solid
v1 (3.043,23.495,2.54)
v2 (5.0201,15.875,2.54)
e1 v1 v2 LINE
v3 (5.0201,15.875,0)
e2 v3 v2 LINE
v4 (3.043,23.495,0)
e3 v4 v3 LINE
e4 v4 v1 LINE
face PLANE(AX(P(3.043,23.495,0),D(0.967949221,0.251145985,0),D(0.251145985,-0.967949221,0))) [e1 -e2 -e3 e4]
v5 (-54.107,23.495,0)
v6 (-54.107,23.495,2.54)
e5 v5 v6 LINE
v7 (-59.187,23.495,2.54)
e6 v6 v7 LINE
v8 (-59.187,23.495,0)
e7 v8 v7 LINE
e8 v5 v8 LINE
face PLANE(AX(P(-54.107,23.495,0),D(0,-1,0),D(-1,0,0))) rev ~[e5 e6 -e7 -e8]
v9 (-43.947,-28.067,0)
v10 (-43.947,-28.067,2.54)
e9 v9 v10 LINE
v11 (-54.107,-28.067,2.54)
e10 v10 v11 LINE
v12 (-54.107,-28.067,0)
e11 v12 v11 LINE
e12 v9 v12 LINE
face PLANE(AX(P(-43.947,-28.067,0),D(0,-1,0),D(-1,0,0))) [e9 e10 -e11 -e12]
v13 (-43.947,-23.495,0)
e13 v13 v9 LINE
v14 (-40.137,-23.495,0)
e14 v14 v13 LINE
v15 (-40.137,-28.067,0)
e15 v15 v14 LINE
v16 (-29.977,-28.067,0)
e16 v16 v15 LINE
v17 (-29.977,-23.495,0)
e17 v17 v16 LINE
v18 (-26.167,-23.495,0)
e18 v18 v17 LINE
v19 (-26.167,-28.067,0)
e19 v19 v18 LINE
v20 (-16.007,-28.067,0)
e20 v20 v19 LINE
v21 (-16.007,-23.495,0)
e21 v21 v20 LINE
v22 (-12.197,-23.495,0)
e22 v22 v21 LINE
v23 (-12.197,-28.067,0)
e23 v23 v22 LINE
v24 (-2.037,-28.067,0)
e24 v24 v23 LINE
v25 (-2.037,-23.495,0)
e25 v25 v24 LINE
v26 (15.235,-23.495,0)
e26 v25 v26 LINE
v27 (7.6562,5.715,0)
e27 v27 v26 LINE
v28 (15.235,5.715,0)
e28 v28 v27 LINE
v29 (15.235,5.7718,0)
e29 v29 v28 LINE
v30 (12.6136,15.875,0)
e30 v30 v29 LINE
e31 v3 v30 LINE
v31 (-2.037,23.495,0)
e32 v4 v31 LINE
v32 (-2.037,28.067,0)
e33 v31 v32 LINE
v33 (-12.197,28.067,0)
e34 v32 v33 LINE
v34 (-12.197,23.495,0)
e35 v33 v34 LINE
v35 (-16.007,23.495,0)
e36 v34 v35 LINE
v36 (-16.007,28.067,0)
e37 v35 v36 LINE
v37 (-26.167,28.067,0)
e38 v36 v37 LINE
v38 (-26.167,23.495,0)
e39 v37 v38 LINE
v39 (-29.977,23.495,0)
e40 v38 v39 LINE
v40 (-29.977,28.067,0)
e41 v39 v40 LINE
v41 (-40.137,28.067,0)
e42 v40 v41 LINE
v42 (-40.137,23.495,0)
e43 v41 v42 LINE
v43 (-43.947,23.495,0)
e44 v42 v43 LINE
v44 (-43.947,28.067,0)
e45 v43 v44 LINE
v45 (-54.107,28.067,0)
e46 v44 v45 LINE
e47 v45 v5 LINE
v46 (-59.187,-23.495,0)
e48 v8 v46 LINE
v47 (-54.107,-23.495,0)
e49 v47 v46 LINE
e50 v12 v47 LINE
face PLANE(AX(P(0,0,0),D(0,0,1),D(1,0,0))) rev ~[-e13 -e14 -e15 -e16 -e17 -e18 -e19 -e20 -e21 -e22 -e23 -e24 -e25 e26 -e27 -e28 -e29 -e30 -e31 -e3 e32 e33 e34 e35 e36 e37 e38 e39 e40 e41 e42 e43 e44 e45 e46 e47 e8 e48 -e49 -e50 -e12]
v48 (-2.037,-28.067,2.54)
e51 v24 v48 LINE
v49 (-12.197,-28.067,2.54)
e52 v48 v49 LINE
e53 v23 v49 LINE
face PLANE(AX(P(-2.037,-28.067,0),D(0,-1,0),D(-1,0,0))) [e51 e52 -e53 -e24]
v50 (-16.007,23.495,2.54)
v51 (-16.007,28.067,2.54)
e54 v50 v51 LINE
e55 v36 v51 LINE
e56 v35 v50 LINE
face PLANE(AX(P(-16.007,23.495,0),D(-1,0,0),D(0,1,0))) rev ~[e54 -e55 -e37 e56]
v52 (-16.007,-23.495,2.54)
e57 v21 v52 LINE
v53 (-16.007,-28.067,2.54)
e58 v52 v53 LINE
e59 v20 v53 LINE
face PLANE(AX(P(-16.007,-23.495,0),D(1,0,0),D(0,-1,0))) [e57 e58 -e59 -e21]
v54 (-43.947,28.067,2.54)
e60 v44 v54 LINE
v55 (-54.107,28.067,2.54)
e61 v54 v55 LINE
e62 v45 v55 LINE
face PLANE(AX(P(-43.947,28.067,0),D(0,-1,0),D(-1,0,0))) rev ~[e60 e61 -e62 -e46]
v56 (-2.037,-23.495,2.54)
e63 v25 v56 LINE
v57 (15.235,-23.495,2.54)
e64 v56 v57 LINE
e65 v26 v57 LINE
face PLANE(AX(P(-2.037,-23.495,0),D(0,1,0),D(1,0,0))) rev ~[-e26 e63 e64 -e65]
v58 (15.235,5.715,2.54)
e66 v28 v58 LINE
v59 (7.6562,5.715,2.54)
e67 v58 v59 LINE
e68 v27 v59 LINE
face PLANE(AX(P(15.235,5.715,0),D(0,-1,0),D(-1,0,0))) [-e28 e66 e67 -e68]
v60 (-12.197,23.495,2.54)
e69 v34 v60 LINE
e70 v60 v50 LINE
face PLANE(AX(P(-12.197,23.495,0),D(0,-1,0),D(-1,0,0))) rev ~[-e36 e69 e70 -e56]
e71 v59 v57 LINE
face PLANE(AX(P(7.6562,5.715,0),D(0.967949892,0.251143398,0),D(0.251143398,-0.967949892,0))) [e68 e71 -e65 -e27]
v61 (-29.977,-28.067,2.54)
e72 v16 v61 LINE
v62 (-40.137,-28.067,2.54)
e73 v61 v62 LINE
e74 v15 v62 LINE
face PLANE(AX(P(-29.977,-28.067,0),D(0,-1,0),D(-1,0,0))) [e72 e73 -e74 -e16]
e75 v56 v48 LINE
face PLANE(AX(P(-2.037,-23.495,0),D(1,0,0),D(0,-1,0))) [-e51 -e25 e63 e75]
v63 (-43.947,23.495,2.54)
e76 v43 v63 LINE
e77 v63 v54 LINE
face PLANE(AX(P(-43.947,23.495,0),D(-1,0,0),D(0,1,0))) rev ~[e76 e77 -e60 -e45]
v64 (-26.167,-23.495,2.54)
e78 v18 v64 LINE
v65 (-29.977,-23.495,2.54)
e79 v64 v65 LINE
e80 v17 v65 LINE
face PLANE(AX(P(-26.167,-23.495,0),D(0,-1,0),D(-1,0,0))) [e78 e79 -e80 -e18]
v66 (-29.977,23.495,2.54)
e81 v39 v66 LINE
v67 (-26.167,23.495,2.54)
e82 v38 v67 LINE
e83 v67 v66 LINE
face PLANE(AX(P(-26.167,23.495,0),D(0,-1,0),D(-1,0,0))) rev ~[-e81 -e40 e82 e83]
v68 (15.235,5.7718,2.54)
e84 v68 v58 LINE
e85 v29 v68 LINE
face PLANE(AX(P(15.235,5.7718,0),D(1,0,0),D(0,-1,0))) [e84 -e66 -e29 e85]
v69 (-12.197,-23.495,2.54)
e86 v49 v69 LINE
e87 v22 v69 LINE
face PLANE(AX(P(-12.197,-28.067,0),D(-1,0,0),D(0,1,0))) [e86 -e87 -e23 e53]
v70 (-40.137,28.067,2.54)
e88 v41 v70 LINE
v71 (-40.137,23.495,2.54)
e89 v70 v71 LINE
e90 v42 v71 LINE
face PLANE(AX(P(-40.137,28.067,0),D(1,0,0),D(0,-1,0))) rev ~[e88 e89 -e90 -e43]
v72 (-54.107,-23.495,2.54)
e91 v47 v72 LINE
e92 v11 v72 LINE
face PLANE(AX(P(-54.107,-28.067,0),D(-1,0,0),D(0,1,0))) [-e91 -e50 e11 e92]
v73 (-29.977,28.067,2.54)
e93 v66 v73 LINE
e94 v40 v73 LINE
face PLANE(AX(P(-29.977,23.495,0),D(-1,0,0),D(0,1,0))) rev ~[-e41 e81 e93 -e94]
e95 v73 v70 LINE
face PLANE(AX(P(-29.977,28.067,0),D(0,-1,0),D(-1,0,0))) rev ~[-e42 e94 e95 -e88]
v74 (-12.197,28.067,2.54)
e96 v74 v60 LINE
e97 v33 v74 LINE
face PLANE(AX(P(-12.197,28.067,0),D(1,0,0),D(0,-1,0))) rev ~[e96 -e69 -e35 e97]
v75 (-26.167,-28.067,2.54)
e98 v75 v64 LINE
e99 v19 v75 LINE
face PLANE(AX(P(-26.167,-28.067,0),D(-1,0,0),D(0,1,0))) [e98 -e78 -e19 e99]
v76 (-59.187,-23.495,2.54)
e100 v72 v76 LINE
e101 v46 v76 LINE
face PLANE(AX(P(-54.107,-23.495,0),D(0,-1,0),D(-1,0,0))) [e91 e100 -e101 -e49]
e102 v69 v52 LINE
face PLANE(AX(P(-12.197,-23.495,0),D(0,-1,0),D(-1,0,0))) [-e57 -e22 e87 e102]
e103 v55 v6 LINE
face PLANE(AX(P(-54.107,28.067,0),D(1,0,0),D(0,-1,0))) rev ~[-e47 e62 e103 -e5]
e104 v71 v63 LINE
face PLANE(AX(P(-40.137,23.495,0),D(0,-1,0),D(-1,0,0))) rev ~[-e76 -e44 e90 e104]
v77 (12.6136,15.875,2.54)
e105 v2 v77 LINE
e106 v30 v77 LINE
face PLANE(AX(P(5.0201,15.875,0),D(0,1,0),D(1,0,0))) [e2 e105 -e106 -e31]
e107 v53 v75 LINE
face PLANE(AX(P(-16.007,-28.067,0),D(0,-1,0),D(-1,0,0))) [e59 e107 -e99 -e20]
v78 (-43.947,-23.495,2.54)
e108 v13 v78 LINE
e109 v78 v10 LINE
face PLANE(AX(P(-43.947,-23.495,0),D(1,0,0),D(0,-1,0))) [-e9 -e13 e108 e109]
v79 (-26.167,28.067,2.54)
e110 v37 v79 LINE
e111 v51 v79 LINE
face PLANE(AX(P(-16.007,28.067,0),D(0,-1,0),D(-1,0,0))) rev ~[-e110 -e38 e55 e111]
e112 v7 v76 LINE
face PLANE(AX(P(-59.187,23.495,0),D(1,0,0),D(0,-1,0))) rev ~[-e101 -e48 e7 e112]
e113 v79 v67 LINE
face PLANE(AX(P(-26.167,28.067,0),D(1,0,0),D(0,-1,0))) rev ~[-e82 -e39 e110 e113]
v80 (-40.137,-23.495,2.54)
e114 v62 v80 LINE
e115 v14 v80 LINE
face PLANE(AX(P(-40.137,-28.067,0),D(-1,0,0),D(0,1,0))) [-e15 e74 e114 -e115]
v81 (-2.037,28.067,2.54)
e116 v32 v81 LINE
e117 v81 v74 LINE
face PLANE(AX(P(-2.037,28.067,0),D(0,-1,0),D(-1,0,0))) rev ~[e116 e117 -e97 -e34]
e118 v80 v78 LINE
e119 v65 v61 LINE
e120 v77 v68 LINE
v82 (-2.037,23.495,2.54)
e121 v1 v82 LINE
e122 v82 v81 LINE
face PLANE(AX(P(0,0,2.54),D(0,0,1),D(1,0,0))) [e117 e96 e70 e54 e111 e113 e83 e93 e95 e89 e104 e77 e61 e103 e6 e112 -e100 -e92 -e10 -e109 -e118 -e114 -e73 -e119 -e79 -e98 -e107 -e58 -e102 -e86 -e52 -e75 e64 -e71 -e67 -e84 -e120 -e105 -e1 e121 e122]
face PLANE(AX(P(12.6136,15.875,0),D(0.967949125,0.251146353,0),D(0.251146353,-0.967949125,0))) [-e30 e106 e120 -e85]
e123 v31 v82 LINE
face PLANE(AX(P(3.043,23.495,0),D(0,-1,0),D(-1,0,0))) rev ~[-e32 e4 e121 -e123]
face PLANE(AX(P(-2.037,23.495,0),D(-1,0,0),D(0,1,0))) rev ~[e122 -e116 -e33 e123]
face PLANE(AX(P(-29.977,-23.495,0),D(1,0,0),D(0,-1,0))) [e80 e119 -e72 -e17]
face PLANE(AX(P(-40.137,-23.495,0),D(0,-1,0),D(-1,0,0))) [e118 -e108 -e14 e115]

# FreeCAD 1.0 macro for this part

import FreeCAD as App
import Part
import Sketcher
Q = App.Units.Quantity

doc = App.newDocument("Part")
body = doc.addObject("PartDesign::Body", "Body")

# Sketch on XY plane
sketch1 = body.newObject("Sketcher::SketchObject", "Sketch")
sketch1.AttachmentSupport = (doc.getObject("XY_Plane"), [""])
sketch1.MapMode = "FlatFace"
sketch1.addGeometry([
    Part.LineSegment(App.Vector(-2.037, -28.067, 0), App.Vector(-2.037, -23.495, 0)),  # 0
    Part.LineSegment(App.Vector(-2.037, -23.495, 0), App.Vector(15.235, -23.495, 0)),  # 1
    Part.LineSegment(App.Vector(15.235, -23.495, 0), App.Vector(7.6562, 5.715, 0)),  # 2
    Part.LineSegment(App.Vector(7.6562, 5.715, 0), App.Vector(15.235, 5.715, 0)),  # 3
    Part.LineSegment(App.Vector(15.235, 5.715, 0), App.Vector(15.235, 5.7718, 0)),  # 4
    Part.LineSegment(App.Vector(15.235, 5.7718, 0), App.Vector(12.6136, 15.875, 0)),  # 5
    Part.LineSegment(App.Vector(12.6136, 15.875, 0), App.Vector(5.0201, 15.875, 0)),  # 6
    Part.LineSegment(App.Vector(5.0201, 15.875, 0), App.Vector(3.043, 23.495, 0)),  # 7
    Part.LineSegment(App.Vector(3.043, 23.495, 0), App.Vector(-2.037, 23.495, 0)),  # 8
    Part.LineSegment(App.Vector(-2.037, 23.495, 0), App.Vector(-2.037, 28.067, 0)),  # 9
    Part.LineSegment(App.Vector(-2.037, 28.067, 0), App.Vector(-12.197, 28.067, 0)),  # 10
    Part.LineSegment(App.Vector(-12.197, 28.067, 0), App.Vector(-12.197, 23.495, 0)),  # 11
    Part.LineSegment(App.Vector(-12.197, 23.495, 0), App.Vector(-16.007, 23.495, 0)),  # 12
    Part.LineSegment(App.Vector(-16.007, 23.495, 0), App.Vector(-16.007, 28.067, 0)),  # 13
    Part.LineSegment(App.Vector(-16.007, 28.067, 0), App.Vector(-26.167, 28.067, 0)),  # 14
    Part.LineSegment(App.Vector(-26.167, 28.067, 0), App.Vector(-26.167, 23.495, 0)),  # 15
    Part.LineSegment(App.Vector(-26.167, 23.495, 0), App.Vector(-29.977, 23.495, 0)),  # 16
    Part.LineSegment(App.Vector(-29.977, 23.495, 0), App.Vector(-29.977, 28.067, 0)),  # 17
    Part.LineSegment(App.Vector(-29.977, 28.067, 0), App.Vector(-40.137, 28.067, 0)),  # 18
    Part.LineSegment(App.Vector(-40.137, 28.067, 0), App.Vector(-40.137, 23.495, 0)),  # 19
    Part.LineSegment(App.Vector(-40.137, 23.495, 0), App.Vector(-43.947, 23.495, 0)),  # 20
    Part.LineSegment(App.Vector(-43.947, 23.495, 0), App.Vector(-43.947, 28.067, 0)),  # 21
    Part.LineSegment(App.Vector(-43.947, 28.067, 0), App.Vector(-54.107, 28.067, 0)),  # 22
    Part.LineSegment(App.Vector(-54.107, 28.067, 0), App.Vector(-54.107, 23.495, 0)),  # 23
    Part.LineSegment(App.Vector(-54.107, 23.495, 0), App.Vector(-59.187, 23.495, 0)),  # 24
    Part.LineSegment(App.Vector(-59.187, 23.495, 0), App.Vector(-59.187, -23.495, 0)),  # 25
    Part.LineSegment(App.Vector(-59.187, -23.495, 0), App.Vector(-54.107, -23.495, 0)),  # 26
    Part.LineSegment(App.Vector(-54.107, -23.495, 0), App.Vector(-54.107, -28.067, 0)),  # 27
    Part.LineSegment(App.Vector(-54.107, -28.067, 0), App.Vector(-43.947, -28.067, 0)),  # 28
    Part.LineSegment(App.Vector(-43.947, -28.067, 0), App.Vector(-43.947, -23.495, 0)),  # 29
    Part.LineSegment(App.Vector(-43.947, -23.495, 0), App.Vector(-40.137, -23.495, 0)),  # 30
    Part.LineSegment(App.Vector(-40.137, -23.495, 0), App.Vector(-40.137, -28.067, 0)),  # 31
    Part.LineSegment(App.Vector(-40.137, -28.067, 0), App.Vector(-29.977, -28.067, 0)),  # 32
    Part.LineSegment(App.Vector(-29.977, -28.067, 0), App.Vector(-29.977, -23.495, 0)),  # 33
    Part.LineSegment(App.Vector(-29.977, -23.495, 0), App.Vector(-26.167, -23.495, 0)),  # 34
    Part.LineSegment(App.Vector(-26.167, -23.495, 0), App.Vector(-26.167, -28.067, 0)),  # 35
    Part.LineSegment(App.Vector(-26.167, -28.067, 0), App.Vector(-16.007, -28.067, 0)),  # 36
    Part.LineSegment(App.Vector(-16.007, -28.067, 0), App.Vector(-16.007, -23.495, 0)),  # 37
    Part.LineSegment(App.Vector(-16.007, -23.495, 0), App.Vector(-12.197, -23.495, 0)),  # 38
    Part.LineSegment(App.Vector(-12.197, -23.495, 0), App.Vector(-12.197, -28.067, 0)),  # 39
    Part.LineSegment(App.Vector(-12.197, -28.067, 0), App.Vector(-2.037, -28.067, 0)),  # 40
], False)
sketch1.addConstraint([
    Sketcher.Constraint("Coincident", 0, 2, 1, 1),
    Sketcher.Constraint("Coincident", 1, 2, 2, 1),
    Sketcher.Constraint("Coincident", 2, 2, 3, 1),
    Sketcher.Constraint("Coincident", 3, 2, 4, 1),
    Sketcher.Constraint("Coincident", 4, 2, 5, 1),
    Sketcher.Constraint("Coincident", 5, 2, 6, 1),
    Sketcher.Constraint("Coincident", 6, 2, 7, 1),
    Sketcher.Constraint("Coincident", 7, 2, 8, 1),
    Sketcher.Constraint("Coincident", 8, 2, 9, 1),
    Sketcher.Constraint("Coincident", 9, 2, 10, 1),
    Sketcher.Constraint("Coincident", 10, 2, 11, 1),
    Sketcher.Constraint("Coincident", 11, 2, 12, 1),
    Sketcher.Constraint("Coincident", 12, 2, 13, 1),
    Sketcher.Constraint("Coincident", 13, 2, 14, 1),
    Sketcher.Constraint("Coincident", 14, 2, 15, 1),
    Sketcher.Constraint("Coincident", 15, 2, 16, 1),
    Sketcher.Constraint("Coincident", 16, 2, 17, 1),
    Sketcher.Constraint("Coincident", 17, 2, 18, 1),
    Sketcher.Constraint("Coincident", 18, 2, 19, 1),
    Sketcher.Constraint("Coincident", 19, 2, 20, 1),
    Sketcher.Constraint("Coincident", 20, 2, 21, 1),
    Sketcher.Constraint("Coincident", 21, 2, 22, 1),
    Sketcher.Constraint("Coincident", 22, 2, 23, 1),
    Sketcher.Constraint("Coincident", 23, 2, 24, 1),
    Sketcher.Constraint("Coincident", 24, 2, 25, 1),
    Sketcher.Constraint("Coincident", 25, 2, 26, 1),
    Sketcher.Constraint("Coincident", 26, 2, 27, 1),
    Sketcher.Constraint("Coincident", 27, 2, 28, 1),
    Sketcher.Constraint("Coincident", 28, 2, 29, 1),
    Sketcher.Constraint("Coincident", 29, 2, 30, 1),
    Sketcher.Constraint("Coincident", 30, 2, 31, 1),
    Sketcher.Constraint("Coincident", 31, 2, 32, 1),
    Sketcher.Constraint("Coincident", 32, 2, 33, 1),
    Sketcher.Constraint("Coincident", 33, 2, 34, 1),
    Sketcher.Constraint("Coincident", 34, 2, 35, 1),
    Sketcher.Constraint("Coincident", 35, 2, 36, 1),
    Sketcher.Constraint("Coincident", 36, 2, 37, 1),
    Sketcher.Constraint("Coincident", 37, 2, 38, 1),
    Sketcher.Constraint("Coincident", 38, 2, 39, 1),
    Sketcher.Constraint("Coincident", 39, 2, 40, 1),
    Sketcher.Constraint("Coincident", 40, 2, 0, 1),
    Sketcher.Constraint("Vertical", 0),
    Sketcher.Constraint("Horizontal", 1),
    Sketcher.Constraint("Horizontal", 3),
    Sketcher.Constraint("Vertical", 4),
    Sketcher.Constraint("Horizontal", 6),
    Sketcher.Constraint("Horizontal", 8),
    Sketcher.Constraint("Vertical", 9),
    Sketcher.Constraint("Horizontal", 10),
    Sketcher.Constraint("Vertical", 11),
    Sketcher.Constraint("Horizontal", 12),
    Sketcher.Constraint("Vertical", 13),
    Sketcher.Constraint("Horizontal", 14),
    Sketcher.Constraint("Vertical", 15),
    Sketcher.Constraint("Horizontal", 16),
    Sketcher.Constraint("Vertical", 17),
    Sketcher.Constraint("Horizontal", 18),
    Sketcher.Constraint("Vertical", 19),
    Sketcher.Constraint("Horizontal", 20),
    Sketcher.Constraint("Vertical", 21),
    Sketcher.Constraint("Horizontal", 22),
    Sketcher.Constraint("Vertical", 23),
    Sketcher.Constraint("Horizontal", 24),
    Sketcher.Constraint("Vertical", 25),
    Sketcher.Constraint("Horizontal", 26),
    Sketcher.Constraint("Vertical", 27),
    Sketcher.Constraint("Horizontal", 28),
    Sketcher.Constraint("Vertical", 29),
    Sketcher.Constraint("Horizontal", 30),
    Sketcher.Constraint("Vertical", 31),
    Sketcher.Constraint("Horizontal", 32),
    Sketcher.Constraint("Vertical", 33),
    Sketcher.Constraint("Horizontal", 34),
    Sketcher.Constraint("Vertical", 35),
    Sketcher.Constraint("Horizontal", 36),
    Sketcher.Constraint("Vertical", 37),
    Sketcher.Constraint("Horizontal", 38),
    Sketcher.Constraint("Vertical", 39),
    Sketcher.Constraint("Horizontal", 40),
    Sketcher.Constraint("Symmetric", 0, 2, 8, 2, -1),
    Sketcher.Constraint("Symmetric", 23, 2, 26, 2, -1),
    Sketcher.Constraint("Symmetric", 21, 2, 28, 2, -1),
    Sketcher.Constraint("Symmetric", 19, 2, 30, 2, -1),
    Sketcher.Constraint("Symmetric", 17, 2, 32, 2, -1),
    Sketcher.Constraint("Symmetric", 15, 2, 34, 2, -1),
    Sketcher.Constraint("Symmetric", 13, 2, 36, 2, -1),
    Sketcher.Constraint("Symmetric", 11, 2, 38, 2, -1),
    Sketcher.Constraint("Parallel", 2, 5),
    Sketcher.Constraint("Parallel", 5, 7),
    Sketcher.Constraint("Horizontal", 8, 2, 11, 2),
    Sketcher.Constraint("Horizontal", 10, 2, 13, 2),
    Sketcher.Constraint("Horizontal", 12, 2, 15, 2),
    Sketcher.Constraint("Horizontal", 14, 2, 17, 2),
    Sketcher.Constraint("Horizontal", 16, 2, 19, 2),
    Sketcher.Constraint("Horizontal", 18, 2, 21, 2),
    Sketcher.Constraint("Horizontal", 20, 2, 23, 2),
    Sketcher.Constraint("Horizontal", 36, 2, 39, 2),
    Sketcher.Constraint("Vertical", 1, 2, 3, 2),
    Sketcher.Constraint("Equal", 10, 14),
    Sketcher.Constraint("Equal", 12, 16),
    Sketcher.Constraint("Equal", 14, 18),
    Sketcher.Constraint("Equal", 16, 20),
    Sketcher.Constraint("Equal", 18, 22),
    Sketcher.Constraint("Equal", 8, 24),
    Sketcher.Constraint("DistanceX", 8, 2, 8, 1, Q("0.2 in")),
    Sketcher.Constraint("DistanceX", 10, 2, 10, 1, Q("0.4 in")),
    Sketcher.Constraint("DistanceX", 12, 2, 12, 1, Q("0.15 in")),
    Sketcher.Constraint("DistanceY", 0, 1, 0, 2, Q("0.18 in")),
    Sketcher.Constraint("DistanceY", 3, 2, 5, 2, Q("0.4 in")),
    Sketcher.Constraint("DistanceY", 6, 2, 7, 2, Q("0.3 in")),
    Sketcher.Constraint("DistanceY", 1, 2, 2, 2, Q("1.15 in")),
    Sketcher.Constraint("DistanceX", 1, 1, 1, 2, Q("0.68 in")),
    Sketcher.Constraint("DistanceY", 4, 2, 5, 2, 10.1032),
    Sketcher.Constraint("DistanceX", 3, 1, 3, 2, 7.5788),
    Sketcher.Constraint("DistanceX", 0, 2, -1, 1, Q("0.0802 in")),
])
pad1 = body.newObject("PartDesign::Pad", "Pad")
pad1.Profile = sketch1
pad1.Length = Q("0.1 in")

doc.recompute()
